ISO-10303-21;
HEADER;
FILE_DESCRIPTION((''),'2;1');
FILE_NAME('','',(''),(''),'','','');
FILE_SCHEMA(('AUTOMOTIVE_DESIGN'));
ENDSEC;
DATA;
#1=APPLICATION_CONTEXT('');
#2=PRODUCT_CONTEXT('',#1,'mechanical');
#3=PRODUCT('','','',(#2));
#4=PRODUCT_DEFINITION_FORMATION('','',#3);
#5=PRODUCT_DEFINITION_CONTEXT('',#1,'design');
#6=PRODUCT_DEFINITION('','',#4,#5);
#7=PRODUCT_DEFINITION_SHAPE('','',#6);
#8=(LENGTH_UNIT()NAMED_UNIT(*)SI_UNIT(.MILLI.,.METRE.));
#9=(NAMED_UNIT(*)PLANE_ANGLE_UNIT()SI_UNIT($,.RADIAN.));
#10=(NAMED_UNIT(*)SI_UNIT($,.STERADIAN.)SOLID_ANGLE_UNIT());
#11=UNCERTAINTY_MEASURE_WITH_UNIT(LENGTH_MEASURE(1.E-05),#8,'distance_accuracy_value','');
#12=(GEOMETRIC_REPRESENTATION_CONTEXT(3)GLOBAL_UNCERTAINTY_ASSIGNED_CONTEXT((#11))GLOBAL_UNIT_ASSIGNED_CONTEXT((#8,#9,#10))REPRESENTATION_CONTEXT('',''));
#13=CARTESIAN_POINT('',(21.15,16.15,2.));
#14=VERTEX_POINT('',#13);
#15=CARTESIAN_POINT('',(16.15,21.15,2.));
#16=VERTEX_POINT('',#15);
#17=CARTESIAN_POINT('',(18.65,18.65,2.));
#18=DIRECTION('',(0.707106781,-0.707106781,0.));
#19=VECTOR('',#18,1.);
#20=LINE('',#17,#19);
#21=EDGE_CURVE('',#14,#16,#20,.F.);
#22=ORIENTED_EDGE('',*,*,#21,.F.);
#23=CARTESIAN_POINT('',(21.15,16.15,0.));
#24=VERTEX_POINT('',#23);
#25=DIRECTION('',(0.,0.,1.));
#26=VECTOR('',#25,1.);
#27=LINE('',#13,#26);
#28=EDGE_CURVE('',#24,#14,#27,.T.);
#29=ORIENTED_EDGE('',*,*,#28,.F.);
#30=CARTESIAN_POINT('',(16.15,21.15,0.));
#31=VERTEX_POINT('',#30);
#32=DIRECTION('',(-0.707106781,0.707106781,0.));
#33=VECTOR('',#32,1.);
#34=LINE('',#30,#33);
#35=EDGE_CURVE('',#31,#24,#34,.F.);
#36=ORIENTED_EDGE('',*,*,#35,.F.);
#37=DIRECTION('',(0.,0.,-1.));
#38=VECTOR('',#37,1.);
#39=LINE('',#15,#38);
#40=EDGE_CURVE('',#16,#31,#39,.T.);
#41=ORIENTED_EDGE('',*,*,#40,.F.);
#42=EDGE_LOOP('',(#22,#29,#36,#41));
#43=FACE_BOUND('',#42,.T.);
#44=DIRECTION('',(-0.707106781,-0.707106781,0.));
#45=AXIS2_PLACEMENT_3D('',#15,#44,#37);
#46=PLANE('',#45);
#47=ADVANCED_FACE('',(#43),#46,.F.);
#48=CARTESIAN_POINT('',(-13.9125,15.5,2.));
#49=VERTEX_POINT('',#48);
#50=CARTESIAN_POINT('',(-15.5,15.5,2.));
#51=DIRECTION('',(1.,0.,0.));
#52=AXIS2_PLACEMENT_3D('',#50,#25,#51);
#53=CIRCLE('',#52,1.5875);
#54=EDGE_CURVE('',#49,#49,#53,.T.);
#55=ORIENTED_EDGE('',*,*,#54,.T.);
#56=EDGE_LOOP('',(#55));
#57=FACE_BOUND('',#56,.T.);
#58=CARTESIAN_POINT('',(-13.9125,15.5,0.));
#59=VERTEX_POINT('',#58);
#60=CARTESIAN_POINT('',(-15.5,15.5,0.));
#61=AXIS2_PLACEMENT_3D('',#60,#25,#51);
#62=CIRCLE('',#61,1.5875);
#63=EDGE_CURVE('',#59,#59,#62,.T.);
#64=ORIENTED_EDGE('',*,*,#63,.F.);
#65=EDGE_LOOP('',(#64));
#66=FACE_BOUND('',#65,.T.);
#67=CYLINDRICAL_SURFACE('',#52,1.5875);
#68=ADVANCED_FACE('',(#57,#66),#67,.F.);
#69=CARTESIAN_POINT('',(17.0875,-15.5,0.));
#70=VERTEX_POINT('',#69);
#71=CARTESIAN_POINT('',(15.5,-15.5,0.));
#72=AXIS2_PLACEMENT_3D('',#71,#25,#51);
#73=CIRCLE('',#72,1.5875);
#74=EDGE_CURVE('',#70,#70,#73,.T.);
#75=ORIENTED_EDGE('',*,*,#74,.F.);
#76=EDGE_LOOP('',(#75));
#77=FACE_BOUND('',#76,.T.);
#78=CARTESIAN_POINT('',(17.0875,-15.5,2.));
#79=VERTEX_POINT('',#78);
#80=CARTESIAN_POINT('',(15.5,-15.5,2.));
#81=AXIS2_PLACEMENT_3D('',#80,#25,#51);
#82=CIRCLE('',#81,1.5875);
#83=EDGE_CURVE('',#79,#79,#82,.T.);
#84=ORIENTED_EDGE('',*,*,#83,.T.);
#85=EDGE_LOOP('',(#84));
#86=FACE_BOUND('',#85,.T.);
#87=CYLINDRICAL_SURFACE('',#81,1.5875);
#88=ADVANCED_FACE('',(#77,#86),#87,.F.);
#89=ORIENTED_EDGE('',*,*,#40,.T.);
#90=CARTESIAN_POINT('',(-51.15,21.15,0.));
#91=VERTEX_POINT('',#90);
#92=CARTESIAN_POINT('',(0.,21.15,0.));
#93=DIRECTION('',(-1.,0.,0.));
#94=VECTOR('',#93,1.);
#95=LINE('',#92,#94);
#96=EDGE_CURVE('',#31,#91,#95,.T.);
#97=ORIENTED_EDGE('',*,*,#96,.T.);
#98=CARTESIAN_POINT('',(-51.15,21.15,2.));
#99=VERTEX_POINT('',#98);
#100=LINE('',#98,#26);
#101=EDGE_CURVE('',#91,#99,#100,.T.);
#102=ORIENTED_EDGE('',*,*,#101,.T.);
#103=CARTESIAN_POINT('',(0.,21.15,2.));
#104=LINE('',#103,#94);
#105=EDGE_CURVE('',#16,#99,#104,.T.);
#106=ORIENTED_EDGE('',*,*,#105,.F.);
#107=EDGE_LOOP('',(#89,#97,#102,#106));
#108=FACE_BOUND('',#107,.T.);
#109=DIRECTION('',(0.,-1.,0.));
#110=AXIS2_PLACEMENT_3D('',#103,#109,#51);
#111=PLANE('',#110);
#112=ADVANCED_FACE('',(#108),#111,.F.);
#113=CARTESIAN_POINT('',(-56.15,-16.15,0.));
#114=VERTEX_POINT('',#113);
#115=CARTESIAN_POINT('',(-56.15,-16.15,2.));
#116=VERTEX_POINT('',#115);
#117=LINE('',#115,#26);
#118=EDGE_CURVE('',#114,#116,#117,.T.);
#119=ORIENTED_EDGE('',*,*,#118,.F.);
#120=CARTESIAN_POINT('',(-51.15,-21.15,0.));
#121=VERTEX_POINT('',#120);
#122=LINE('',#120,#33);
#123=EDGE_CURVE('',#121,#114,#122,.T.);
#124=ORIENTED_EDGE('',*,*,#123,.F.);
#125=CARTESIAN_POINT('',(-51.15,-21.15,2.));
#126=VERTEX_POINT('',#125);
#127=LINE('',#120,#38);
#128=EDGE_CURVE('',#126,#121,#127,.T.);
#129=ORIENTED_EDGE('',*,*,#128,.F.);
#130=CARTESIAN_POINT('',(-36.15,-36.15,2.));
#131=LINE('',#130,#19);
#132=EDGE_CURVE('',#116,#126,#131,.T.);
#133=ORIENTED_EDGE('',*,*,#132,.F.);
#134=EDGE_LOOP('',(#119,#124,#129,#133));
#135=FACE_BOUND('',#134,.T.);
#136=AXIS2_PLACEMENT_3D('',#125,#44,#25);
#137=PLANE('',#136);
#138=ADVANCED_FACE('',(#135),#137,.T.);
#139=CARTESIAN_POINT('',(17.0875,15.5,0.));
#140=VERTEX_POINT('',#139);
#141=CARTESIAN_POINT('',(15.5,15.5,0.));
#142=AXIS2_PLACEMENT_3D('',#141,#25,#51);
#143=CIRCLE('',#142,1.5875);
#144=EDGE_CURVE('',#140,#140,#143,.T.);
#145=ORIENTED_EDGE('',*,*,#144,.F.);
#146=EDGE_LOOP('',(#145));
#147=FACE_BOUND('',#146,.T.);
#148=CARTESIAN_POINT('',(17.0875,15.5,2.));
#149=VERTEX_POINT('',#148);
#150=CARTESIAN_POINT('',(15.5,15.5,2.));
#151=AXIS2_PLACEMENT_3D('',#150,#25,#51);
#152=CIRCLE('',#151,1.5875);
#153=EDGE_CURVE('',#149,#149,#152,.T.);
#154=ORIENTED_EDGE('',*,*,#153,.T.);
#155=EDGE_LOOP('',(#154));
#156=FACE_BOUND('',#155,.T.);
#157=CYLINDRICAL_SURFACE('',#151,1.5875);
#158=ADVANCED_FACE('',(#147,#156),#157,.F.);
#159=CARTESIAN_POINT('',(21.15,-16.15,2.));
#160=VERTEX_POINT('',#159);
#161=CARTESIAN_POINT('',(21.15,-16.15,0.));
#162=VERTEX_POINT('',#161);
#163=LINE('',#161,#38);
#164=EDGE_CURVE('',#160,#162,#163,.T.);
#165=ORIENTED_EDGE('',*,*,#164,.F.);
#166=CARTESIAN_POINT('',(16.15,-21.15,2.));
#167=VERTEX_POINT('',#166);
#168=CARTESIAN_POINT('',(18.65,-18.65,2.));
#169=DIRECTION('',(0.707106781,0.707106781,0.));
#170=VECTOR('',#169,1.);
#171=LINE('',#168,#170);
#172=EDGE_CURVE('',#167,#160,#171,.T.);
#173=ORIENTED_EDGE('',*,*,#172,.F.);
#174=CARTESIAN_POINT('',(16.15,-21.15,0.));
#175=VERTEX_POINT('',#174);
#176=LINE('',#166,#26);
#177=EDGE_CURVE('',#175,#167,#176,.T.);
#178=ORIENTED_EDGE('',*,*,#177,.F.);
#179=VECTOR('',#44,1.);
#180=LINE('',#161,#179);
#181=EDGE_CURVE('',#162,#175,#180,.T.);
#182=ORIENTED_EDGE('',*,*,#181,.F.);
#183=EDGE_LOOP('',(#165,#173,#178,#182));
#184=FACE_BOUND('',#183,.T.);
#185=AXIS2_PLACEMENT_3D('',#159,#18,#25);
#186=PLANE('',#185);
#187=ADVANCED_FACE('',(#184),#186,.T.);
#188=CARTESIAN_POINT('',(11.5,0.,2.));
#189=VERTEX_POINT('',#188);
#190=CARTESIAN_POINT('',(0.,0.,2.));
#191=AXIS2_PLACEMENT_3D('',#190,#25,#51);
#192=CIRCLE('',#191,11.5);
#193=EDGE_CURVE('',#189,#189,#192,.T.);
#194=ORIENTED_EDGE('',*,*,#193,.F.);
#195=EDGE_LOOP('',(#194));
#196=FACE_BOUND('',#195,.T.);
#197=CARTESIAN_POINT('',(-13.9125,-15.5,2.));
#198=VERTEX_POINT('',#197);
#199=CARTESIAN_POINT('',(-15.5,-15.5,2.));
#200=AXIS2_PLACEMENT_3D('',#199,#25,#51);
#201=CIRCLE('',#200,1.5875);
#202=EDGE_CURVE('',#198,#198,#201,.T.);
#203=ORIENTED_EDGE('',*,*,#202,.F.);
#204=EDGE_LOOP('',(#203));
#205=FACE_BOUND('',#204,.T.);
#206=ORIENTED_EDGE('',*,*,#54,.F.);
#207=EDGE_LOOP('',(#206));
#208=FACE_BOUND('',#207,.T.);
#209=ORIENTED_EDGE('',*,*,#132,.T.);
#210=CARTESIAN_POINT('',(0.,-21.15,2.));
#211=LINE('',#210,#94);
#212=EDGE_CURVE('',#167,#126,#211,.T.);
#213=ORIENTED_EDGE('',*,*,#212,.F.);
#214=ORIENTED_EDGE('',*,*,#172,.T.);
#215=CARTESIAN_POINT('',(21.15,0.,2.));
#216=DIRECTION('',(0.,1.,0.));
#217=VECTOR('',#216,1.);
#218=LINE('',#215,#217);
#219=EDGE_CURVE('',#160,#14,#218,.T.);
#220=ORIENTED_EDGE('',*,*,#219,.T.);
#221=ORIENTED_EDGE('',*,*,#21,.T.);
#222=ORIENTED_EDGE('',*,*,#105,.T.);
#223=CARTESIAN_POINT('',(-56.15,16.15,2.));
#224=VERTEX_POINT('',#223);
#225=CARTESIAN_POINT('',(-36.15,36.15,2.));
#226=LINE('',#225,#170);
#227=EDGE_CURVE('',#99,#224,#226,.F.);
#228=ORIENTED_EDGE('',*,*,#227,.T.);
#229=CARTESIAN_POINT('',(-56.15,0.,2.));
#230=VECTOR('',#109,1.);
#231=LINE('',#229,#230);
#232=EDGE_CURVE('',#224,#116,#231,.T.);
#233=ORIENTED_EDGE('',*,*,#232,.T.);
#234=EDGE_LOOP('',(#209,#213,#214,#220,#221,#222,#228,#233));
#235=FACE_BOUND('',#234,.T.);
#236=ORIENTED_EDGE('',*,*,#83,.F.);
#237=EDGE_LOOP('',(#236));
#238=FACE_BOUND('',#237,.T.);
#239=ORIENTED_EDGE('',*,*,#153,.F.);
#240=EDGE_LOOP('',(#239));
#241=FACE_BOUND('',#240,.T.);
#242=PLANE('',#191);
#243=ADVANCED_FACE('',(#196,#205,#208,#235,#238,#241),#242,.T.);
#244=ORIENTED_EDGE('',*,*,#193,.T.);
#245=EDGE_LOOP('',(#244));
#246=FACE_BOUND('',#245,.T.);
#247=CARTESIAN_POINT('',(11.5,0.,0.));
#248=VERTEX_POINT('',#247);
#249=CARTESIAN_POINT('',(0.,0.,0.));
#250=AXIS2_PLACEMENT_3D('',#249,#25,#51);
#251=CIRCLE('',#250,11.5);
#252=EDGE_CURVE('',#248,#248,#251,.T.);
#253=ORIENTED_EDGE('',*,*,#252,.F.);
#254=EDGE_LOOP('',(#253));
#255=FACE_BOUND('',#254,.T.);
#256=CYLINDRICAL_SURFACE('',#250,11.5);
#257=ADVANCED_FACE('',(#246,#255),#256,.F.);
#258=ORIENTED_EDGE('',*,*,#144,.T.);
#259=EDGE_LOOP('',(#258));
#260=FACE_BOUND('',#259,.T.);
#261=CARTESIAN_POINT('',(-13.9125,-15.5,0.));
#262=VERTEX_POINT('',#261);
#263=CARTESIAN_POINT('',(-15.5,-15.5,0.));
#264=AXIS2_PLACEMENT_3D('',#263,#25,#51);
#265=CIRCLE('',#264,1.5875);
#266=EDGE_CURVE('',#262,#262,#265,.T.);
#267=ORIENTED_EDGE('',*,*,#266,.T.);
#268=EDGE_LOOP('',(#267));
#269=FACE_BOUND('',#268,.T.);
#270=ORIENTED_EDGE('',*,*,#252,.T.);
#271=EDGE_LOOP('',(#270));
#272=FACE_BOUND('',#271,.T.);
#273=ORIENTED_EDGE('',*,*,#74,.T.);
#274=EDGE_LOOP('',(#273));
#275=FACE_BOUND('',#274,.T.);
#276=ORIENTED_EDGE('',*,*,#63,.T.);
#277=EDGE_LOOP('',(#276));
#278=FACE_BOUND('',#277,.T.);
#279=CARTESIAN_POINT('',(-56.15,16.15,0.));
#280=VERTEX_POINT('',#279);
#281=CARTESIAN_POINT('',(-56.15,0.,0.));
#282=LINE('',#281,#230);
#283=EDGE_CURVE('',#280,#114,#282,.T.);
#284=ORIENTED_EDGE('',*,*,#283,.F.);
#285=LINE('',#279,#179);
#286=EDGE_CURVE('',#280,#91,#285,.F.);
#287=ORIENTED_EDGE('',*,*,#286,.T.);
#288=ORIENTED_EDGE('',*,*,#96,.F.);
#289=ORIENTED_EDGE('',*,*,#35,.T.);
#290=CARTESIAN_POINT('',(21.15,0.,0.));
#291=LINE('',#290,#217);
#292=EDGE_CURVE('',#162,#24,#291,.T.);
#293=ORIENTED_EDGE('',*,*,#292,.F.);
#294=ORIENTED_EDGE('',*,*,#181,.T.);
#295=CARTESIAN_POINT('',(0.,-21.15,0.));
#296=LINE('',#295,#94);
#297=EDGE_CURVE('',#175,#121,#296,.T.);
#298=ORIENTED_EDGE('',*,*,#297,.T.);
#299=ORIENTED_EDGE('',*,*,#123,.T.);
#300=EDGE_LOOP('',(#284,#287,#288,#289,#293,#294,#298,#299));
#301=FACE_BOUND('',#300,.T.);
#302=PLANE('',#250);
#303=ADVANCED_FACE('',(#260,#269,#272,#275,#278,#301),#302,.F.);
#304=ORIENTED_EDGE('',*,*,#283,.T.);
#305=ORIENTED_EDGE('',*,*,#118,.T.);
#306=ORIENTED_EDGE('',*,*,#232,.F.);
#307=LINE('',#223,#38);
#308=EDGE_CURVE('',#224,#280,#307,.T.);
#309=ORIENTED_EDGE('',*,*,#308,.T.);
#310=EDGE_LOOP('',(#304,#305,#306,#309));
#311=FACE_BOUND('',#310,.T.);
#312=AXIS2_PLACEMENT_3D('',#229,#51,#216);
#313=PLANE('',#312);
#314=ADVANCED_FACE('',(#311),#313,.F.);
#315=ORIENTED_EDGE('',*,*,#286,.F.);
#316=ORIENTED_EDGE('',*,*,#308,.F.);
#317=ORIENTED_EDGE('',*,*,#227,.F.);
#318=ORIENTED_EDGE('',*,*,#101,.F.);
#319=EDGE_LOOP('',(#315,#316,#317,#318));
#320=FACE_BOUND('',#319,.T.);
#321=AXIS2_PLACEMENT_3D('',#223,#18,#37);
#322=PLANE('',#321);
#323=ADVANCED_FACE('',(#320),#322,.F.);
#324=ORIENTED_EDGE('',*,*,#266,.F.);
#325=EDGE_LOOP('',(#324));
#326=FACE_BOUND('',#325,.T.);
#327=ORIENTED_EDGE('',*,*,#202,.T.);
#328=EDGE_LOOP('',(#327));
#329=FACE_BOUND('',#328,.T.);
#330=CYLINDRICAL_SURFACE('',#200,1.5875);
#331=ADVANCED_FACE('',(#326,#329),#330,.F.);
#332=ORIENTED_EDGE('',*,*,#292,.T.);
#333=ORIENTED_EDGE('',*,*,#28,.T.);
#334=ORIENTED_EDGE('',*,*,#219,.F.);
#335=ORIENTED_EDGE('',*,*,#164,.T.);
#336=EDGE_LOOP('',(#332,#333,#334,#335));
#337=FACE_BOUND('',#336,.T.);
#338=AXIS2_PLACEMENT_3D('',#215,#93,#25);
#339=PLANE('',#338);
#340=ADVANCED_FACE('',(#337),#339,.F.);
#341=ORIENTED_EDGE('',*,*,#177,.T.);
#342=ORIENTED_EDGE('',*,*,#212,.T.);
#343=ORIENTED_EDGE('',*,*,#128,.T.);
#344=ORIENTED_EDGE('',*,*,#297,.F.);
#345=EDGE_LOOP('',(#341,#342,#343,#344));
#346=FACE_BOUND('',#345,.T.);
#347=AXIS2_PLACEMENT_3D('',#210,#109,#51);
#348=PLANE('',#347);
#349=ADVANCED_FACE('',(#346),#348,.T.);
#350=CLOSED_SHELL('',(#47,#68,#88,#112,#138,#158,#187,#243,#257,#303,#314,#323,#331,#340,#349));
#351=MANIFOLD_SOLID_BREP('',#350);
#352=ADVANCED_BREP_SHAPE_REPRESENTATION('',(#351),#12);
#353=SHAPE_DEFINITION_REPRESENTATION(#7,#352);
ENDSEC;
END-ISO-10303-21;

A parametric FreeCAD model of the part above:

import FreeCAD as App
import Part
import Sketcher
from FreeCAD import Vector


def edges_at(feature, points):
    """Names of the edges that pass closest to the given points."""
    edges = feature.Shape.Edges
    near = lambda p: min(range(len(edges)), key=lambda i: edges[i].distToShape(Part.Vertex(*p))[0])
    return sorted({f"Edge{near(p) + 1}" for p in points})

doc = App.newDocument("Part")
body = doc.addObject("PartDesign::Body", "Body")

sketch1 = doc.addObject("Sketcher::SketchObject", "Sketch")
body.addObject(sketch1)
sketch1.AttachmentSupport = (doc.XY_Plane, [""])
sketch1.MapMode = "FlatFace"
sketch1.addGeometry([
    Part.LineSegment(Vector(-56, 21, 0), Vector(-56, -21, 0)),
    Part.LineSegment(Vector(-56, -21, 0), Vector(21, -21, 0)),
    Part.LineSegment(Vector(21, -21, 0), Vector(21, 21, 0)),
    Part.LineSegment(Vector(21, 21, 0), Vector(-56, 21, 0)),
], False)
sketch1.addConstraint([
    Sketcher.Constraint("Coincident", 0, 2, 1, 1),
    Sketcher.Constraint("Coincident", 1, 2, 2, 1),
    Sketcher.Constraint("Coincident", 2, 2, 3, 1),
    Sketcher.Constraint("Coincident", 3, 2, 0, 1),
    Sketcher.Constraint("Vertical", 0),
    Sketcher.Constraint("Horizontal", 1),
    Sketcher.Constraint("Vertical", 2),
    Sketcher.Constraint("Horizontal", 3),
    Sketcher.Constraint("DistanceX", 1, 1, 1, 2, 77.3),
    Sketcher.Constraint("DistanceY", 0, 2, 0, 1, 42.3),
    Sketcher.Constraint("DistanceX", 0, 2, -1, 1, 56.15),
    Sketcher.Constraint("DistanceY", 0, 2, -1, 1, 21.15),
])
pad1 = doc.addObject("PartDesign::Pad", "Pad")
body.addObject(pad1)
pad1.Profile = sketch1
pad1.Length = 2

sketch2 = doc.addObject("Sketcher::SketchObject", "Sketch001")
body.addObject(sketch2)
sketch2.AttachmentSupport = (doc.XY_Plane, [""])
sketch2.MapMode = "FlatFace"
sketch2.AttachmentOffset = App.Placement(Vector(0, 0, 2), App.Rotation())
sketch2.addGeometry([
    Part.Circle(Vector(-15.5, 15.5, 0), Vector(0, 0, 1), 1.6),
    Part.Circle(Vector(15.5, 15.5, 0), Vector(0, 0, 1), 1.6),
    Part.Circle(Vector(15.5, -15.5, 0), Vector(0, 0, 1), 1.6),
    Part.Circle(Vector(-15.5, -15.5, 0), Vector(0, 0, 1), 1.6),
], False)
sketch2.addConstraint([
    Sketcher.Constraint("Equal", 0, 1),
    Sketcher.Constraint("Equal", 1, 2),
    Sketcher.Constraint("Equal", 2, 3),
    Sketcher.Constraint("Symmetric", 0, 3, 2, 3, -1, 1),
    Sketcher.Constraint("Symmetric", 1, 3, 3, 3, -1, 1),
    Sketcher.Constraint("Symmetric", 0, 3, 1, 3, -2),
    Sketcher.Constraint("Diameter", 0, 3.175),
    Sketcher.Constraint("DistanceX", 0, 3, 1, 3, 31.0),
    Sketcher.Constraint("DistanceY", 2, 3, 1, 3, 31.0),
])
doc.recompute()
hole = doc.addObject("PartDesign::Hole", "Hole")
body.addObject(hole)
hole.Profile = sketch2
hole.ThreadType = "None"
hole.Diameter = 3.175
hole.DepthType = "Dimension"
hole.Depth = 4.5
hole.DrillPoint = "Angled"
hole.DrillPointAngle = 118

sketch3 = doc.addObject("Sketcher::SketchObject", "Sketch002")
body.addObject(sketch3)
sketch3.AttachmentSupport = (doc.XY_Plane, [""])
sketch3.MapMode = "FlatFace"
sketch3.AttachmentOffset = App.Placement(Vector(0, 0, 2), App.Rotation())
sketch3.addGeometry(Part.Circle(Vector(0, 0, 0), Vector(0, 0, 1), 12), False)
sketch3.addConstraint([
    Sketcher.Constraint("Coincident", 0, 3, -1, 1),
    Sketcher.Constraint("Diameter", 0, 23.0),
])
pocket1 = doc.addObject("PartDesign::Pocket", "Pocket")
body.addObject(pocket1)
pocket1.Profile = sketch3
pocket1.Length = 2
doc.recompute()

chamfer = doc.addObject("PartDesign::Chamfer", "Chamfer")
body.addObject(chamfer)
chamfer.Base = (pocket1, edges_at(pocket1, [
    (21.15, 21.15, 1),
    (21.15, -21.15, 1),
    (-56.15, -21.15, 1),
    (-56.15, 21.15, 1),
]))
chamfer.Size = 5

doc.recompute()
